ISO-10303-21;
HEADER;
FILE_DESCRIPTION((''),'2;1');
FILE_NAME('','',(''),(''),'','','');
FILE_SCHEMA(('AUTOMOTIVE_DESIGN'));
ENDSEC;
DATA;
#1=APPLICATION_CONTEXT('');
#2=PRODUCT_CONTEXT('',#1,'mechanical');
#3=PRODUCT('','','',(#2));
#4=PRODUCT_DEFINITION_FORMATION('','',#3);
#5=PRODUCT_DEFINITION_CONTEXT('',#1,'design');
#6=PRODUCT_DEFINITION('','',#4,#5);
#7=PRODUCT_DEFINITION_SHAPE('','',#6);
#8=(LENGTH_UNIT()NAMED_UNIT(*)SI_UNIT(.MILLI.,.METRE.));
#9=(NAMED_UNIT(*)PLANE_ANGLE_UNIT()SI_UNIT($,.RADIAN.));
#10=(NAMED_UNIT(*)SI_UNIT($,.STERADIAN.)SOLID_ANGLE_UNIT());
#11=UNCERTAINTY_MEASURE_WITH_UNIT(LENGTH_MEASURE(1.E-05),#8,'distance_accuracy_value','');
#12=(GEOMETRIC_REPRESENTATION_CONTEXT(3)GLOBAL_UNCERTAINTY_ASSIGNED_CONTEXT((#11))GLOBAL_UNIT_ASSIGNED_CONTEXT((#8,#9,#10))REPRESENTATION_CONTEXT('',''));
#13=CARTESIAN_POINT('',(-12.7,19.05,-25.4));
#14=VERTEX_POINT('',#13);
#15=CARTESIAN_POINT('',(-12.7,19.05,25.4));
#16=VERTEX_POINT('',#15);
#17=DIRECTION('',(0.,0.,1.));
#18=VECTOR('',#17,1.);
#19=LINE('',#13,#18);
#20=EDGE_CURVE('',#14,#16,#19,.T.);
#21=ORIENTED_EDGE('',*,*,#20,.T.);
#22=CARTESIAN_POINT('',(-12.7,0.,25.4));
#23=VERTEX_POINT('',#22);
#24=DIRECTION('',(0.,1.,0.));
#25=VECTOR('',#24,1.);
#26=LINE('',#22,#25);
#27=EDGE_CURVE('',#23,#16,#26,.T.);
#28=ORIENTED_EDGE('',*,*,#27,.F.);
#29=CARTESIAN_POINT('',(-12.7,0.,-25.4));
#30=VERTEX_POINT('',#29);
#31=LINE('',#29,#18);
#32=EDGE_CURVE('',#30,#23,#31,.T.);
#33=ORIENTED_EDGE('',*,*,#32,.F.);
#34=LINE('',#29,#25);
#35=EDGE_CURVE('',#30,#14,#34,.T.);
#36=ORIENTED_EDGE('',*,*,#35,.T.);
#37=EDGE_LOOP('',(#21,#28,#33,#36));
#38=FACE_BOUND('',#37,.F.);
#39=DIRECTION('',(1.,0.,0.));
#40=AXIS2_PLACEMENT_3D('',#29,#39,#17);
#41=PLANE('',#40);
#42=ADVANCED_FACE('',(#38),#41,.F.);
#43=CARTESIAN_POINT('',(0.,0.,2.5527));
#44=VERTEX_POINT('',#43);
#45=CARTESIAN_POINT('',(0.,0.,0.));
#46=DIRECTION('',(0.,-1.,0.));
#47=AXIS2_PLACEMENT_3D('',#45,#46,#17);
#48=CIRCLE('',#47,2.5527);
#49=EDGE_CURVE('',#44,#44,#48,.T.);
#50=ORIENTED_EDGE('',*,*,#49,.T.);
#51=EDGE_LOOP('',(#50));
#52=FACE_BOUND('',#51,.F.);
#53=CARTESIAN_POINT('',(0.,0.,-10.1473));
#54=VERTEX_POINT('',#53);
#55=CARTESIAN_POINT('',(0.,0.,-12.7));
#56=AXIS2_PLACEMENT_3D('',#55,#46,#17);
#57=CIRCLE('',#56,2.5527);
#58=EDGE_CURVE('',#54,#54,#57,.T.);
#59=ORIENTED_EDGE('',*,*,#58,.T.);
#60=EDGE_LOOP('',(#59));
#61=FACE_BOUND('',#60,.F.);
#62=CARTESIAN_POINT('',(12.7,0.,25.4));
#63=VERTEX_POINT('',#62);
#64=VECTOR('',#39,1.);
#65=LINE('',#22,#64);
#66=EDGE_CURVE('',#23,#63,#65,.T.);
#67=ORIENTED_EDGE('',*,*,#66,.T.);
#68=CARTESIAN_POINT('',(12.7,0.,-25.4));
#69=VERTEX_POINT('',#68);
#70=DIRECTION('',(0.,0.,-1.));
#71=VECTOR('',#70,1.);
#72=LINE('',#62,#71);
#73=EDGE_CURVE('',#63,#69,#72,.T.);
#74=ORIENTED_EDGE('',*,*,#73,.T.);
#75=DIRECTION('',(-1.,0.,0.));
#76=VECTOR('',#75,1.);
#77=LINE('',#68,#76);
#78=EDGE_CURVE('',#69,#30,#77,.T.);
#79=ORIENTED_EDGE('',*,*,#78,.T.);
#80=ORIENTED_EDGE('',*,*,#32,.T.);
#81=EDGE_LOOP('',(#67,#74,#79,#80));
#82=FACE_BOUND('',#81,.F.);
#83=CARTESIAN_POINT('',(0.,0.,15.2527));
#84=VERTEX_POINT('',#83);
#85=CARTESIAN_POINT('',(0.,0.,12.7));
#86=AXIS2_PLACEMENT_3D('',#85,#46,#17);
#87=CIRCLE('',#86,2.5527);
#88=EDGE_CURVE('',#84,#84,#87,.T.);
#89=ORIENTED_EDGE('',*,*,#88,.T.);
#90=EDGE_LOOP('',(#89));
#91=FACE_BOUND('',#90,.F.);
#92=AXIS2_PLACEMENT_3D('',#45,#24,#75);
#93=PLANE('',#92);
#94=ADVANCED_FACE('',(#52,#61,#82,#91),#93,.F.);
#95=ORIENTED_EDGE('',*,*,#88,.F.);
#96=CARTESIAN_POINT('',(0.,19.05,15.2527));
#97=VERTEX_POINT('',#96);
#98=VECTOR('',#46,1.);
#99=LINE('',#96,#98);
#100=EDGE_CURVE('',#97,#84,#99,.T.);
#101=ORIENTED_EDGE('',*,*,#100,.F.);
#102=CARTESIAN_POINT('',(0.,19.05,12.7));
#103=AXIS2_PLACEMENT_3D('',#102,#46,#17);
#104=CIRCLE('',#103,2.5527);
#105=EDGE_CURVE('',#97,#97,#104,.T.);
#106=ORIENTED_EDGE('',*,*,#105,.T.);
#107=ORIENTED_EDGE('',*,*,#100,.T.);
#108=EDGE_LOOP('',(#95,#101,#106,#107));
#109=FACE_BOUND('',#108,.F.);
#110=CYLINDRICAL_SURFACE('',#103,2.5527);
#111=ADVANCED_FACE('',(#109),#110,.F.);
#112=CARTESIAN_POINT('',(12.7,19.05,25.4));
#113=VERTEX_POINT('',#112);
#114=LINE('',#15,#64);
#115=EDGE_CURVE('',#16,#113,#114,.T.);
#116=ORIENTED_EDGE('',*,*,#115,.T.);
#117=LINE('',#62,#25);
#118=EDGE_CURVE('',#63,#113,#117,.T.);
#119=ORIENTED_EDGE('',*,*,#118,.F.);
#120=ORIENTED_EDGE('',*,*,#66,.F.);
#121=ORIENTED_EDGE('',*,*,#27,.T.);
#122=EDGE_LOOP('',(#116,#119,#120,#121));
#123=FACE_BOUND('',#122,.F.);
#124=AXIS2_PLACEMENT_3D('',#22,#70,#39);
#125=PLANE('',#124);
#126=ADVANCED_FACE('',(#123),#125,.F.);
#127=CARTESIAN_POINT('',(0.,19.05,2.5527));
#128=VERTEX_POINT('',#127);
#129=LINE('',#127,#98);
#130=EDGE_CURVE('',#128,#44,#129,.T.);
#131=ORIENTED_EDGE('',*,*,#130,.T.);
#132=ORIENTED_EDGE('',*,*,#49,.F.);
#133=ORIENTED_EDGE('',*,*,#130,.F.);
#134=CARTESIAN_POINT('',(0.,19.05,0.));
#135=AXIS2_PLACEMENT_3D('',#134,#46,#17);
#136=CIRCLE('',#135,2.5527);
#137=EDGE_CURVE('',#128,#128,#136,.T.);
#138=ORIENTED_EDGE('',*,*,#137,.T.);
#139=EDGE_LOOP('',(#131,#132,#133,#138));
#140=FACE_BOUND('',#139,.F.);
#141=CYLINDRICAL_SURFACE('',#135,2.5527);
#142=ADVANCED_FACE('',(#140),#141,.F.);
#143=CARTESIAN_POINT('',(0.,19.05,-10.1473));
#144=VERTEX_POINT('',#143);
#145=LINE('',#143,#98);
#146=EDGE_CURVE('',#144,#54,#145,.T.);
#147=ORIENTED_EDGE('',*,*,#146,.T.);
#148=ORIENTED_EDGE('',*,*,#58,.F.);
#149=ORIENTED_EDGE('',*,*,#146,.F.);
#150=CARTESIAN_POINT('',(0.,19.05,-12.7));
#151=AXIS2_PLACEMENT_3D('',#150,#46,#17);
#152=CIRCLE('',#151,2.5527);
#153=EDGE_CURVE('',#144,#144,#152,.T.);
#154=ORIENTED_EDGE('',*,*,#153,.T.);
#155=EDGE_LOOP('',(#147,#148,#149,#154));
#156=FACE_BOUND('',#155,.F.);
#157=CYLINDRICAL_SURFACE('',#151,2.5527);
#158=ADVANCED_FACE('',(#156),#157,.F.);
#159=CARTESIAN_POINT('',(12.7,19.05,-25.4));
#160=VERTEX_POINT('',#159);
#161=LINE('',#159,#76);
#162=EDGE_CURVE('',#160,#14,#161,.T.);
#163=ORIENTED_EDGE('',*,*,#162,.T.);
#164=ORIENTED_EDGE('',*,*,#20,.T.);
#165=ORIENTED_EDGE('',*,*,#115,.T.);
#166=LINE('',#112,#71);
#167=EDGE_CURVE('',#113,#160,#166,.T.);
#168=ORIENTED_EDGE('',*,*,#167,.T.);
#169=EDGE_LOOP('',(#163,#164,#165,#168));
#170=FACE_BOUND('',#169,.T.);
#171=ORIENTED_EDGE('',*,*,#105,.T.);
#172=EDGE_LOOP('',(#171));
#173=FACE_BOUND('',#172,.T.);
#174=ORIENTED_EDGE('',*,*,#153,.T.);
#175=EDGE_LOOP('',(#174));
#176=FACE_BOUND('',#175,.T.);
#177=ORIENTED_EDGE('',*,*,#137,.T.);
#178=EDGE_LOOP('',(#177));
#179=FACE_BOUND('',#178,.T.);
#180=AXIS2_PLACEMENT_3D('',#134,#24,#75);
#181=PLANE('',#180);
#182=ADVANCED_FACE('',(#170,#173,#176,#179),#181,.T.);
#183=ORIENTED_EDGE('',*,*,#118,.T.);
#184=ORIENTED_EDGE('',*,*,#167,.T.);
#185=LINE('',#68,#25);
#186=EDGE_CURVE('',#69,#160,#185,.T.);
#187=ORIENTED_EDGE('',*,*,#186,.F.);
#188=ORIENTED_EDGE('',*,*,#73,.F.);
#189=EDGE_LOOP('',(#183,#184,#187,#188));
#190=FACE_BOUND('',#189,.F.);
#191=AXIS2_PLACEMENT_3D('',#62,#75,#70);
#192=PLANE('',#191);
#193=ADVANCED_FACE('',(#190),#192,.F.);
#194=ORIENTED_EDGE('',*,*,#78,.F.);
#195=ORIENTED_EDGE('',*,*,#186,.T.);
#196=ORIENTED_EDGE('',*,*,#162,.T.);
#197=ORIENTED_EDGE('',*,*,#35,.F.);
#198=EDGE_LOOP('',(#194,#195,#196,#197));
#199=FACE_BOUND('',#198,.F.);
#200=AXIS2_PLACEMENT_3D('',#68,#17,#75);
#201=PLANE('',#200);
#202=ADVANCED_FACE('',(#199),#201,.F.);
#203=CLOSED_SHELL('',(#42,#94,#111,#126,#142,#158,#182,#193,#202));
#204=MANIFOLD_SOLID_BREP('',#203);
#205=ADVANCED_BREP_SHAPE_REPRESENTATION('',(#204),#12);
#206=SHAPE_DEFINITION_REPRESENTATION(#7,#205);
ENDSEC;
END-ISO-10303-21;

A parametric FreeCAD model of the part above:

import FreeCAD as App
import Part
import Sketcher
from FreeCAD import Vector
Q = App.Units.Quantity


def add_polygon(sketch, points):
    """Adds a closed chain of lines whose ends are joined by coincident constraints."""
    first, n = sketch.GeometryCount, len(points)
    for a, b in zip(points, points[1:] + points[:1]):
        sketch.addGeometry(Part.LineSegment(App.Vector(*a, 0), App.Vector(*b, 0)), False)
    for i in range(n):
        sketch.addConstraint(Sketcher.Constraint("Coincident", first + i, 2, first + (i + 1) % n, 1))

doc = App.newDocument("Part")
body = doc.addObject("PartDesign::Body", "Body")

# Sketch on XZ plane
sketch1 = body.newObject("Sketcher::SketchObject", "Sketch")
sketch1.AttachmentSupport = (doc.getObject("XZ_Plane"), [""])
sketch1.MapMode = "FlatFace"
add_polygon(sketch1, [(-13, -25), (-13, 25), (13, 25), (13, -25)])  # lines 0-3
sketch1.addConstraint(Sketcher.Constraint("Vertical", 0))
sketch1.addConstraint(Sketcher.Constraint("Horizontal", 1))
sketch1.addConstraint(Sketcher.Constraint("Vertical", 2))
sketch1.addConstraint(Sketcher.Constraint("Horizontal", 3))
sketch1.addConstraint(Sketcher.Constraint("Symmetric", 0, 2, 2, 2, -1, 1))
sketch1.addConstraint(Sketcher.Constraint("DistanceX", 1, 1, 1, 2, Q("1 in")))
sketch1.addConstraint(Sketcher.Constraint("DistanceY", 0, 1, 0, 2, Q("2 in")))
pad1 = body.newObject("PartDesign::Pad", "Pad")
pad1.Profile = sketch1
pad1.Length = Q("0.75 in")
pad1.Reversed = True

# Sketch on XZ plane
sketch2 = body.newObject("Sketcher::SketchObject", "Sketch001")
sketch2.AttachmentSupport = (doc.getObject("XZ_Plane"), [""])
sketch2.MapMode = "FlatFace"
sketch2.AttachmentOffset = App.Placement(Vector(0, 0, -0.75 * 25.4), App.Rotation())
sketch2.addGeometry(Part.Circle(Vector(0, 12.7, 0), Vector(0, 0, 1), 2.6), False)
sketch2.addGeometry(Part.Circle(Vector(0, 0, 0), Vector(0, 0, 1), 2.6), False)
sketch2.addGeometry(Part.Circle(Vector(0, -12.7, 0), Vector(0, 0, 1), 2.6), False)
sketch2.addConstraint(Sketcher.Constraint("Coincident", 1, 3, -1, 1))
sketch2.addConstraint(Sketcher.Constraint("Equal", 0, 1))
sketch2.addConstraint(Sketcher.Constraint("Equal", 1, 2))
sketch2.addConstraint(Sketcher.Constraint("Symmetric", 0, 3, 2, 3, -1, 1))
sketch2.addConstraint(Sketcher.Constraint("PointOnObject", 0, 3, -2))
sketch2.addConstraint(Sketcher.Constraint("Diameter", 0, Q("0.201 in")))
sketch2.addConstraint(Sketcher.Constraint("DistanceY", 2, 3, 0, 3, Q("1 in")))
doc.recompute()
hole = body.newObject("PartDesign::Hole", "Hole")
hole.Profile = sketch2
hole.ThreadType = "None"
hole.Diameter = Q("0.201 in")
hole.DepthType = "ThroughAll"
hole.Reversed = True

doc.recompute()
